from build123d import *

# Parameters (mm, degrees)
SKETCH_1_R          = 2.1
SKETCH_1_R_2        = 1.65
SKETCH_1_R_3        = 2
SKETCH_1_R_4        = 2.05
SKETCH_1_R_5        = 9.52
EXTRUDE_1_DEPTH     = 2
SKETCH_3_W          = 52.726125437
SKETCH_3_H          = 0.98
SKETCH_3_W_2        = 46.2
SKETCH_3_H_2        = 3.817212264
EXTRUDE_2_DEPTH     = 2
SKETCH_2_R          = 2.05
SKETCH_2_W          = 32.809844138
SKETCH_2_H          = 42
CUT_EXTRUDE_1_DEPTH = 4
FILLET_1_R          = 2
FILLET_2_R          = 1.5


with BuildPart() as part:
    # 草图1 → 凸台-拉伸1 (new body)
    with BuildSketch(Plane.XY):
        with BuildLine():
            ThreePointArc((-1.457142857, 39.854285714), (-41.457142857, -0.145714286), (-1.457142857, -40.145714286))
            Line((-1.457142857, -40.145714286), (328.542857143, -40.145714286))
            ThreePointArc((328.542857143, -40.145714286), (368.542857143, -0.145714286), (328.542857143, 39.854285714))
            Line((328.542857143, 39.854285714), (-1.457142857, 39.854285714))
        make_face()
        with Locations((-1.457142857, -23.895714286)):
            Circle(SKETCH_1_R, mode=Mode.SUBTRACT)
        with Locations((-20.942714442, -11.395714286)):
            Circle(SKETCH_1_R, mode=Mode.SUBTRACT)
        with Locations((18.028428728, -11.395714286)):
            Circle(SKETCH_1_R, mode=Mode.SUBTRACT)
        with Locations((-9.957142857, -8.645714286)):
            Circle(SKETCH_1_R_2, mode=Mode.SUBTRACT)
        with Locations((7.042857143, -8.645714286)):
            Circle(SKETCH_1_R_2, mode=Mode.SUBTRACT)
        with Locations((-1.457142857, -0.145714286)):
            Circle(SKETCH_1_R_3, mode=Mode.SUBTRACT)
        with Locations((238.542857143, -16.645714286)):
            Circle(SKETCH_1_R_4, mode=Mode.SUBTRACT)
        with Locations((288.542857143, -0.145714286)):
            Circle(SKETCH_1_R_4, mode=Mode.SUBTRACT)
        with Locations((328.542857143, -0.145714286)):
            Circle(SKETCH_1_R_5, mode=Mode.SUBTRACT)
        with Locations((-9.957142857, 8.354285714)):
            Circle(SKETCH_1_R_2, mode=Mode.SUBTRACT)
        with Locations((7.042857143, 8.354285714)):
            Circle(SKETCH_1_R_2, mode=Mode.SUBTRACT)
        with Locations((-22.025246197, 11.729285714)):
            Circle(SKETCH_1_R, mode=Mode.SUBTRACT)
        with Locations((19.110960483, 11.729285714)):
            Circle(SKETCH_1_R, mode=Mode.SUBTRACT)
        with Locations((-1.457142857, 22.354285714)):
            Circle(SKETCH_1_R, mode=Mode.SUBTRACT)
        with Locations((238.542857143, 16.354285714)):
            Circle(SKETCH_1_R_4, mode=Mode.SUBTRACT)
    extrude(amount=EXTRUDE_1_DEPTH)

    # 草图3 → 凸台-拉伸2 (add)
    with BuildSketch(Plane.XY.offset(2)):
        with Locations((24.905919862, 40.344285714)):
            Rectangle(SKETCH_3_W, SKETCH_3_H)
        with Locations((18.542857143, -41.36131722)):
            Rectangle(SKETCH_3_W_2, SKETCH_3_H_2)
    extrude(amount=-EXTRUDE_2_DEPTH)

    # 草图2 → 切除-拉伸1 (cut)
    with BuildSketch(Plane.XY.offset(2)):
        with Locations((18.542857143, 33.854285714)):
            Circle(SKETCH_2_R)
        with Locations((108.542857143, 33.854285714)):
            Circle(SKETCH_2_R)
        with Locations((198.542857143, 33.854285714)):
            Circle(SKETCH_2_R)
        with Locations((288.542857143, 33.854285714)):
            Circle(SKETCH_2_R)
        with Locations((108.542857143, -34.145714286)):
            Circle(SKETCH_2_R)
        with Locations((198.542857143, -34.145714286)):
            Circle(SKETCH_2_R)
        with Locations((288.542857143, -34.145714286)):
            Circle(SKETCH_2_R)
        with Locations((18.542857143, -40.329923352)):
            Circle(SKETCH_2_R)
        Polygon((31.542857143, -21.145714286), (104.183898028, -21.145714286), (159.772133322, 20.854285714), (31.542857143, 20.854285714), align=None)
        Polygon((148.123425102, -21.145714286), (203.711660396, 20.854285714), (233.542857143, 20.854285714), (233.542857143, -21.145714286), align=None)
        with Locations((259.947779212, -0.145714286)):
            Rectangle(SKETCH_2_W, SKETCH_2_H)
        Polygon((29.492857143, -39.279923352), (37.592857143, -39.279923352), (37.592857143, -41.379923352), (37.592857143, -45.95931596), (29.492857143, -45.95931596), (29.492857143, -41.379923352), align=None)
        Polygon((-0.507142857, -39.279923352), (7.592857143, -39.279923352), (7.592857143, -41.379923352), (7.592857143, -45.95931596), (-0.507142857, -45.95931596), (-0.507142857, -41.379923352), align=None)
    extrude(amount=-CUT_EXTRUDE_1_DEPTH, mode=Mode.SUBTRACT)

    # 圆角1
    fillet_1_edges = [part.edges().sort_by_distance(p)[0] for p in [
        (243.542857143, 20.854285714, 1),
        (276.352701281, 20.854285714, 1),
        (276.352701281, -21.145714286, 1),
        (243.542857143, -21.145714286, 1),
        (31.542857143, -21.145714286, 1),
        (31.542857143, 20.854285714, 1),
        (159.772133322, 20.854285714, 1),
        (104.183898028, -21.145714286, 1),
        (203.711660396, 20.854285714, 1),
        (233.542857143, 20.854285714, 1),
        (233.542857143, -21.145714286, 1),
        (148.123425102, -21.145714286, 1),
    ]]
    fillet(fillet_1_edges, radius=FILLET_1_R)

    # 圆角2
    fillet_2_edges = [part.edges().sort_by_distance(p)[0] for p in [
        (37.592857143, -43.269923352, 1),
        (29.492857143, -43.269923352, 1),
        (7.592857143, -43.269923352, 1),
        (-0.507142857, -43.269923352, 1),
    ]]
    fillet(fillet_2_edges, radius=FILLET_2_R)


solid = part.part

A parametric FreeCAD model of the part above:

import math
import FreeCAD as App
import Part
import Sketcher

V = App.Vector


def edges_at(feature, points):
    """Names of the edges that pass closest to the given points."""
    edges = feature.Shape.Edges
    near = lambda p: min(range(len(edges)), key=lambda i: edges[i].distToShape(Part.Vertex(*p))[0])
    return sorted({f"Edge{near(p) + 1}" for p in points})

doc = App.newDocument("Part")
body = doc.addObject("PartDesign::Body", "Body")

# Sketch on XY plane
sketch1 = body.newObject("Sketcher::SketchObject", "Sketch")
sketch1.AttachmentSupport = (doc.getObject("XY_Plane"), [""])
sketch1.MapMode = "FlatFace"
sketch1.addGeometry(Part.ArcOfCircle(Part.Circle(V(-1.5, -0.1, 0), V(0, 0, 1), 40), math.radians(90), math.radians(270)), False)
sketch1.addGeometry(Part.LineSegment(V(-1.5, -40.1, 0), V(328.5, -40.1, 0)), False)
sketch1.addGeometry(Part.ArcOfCircle(Part.Circle(V(328.5, -0.1, 0), V(0, 0, 1), 40), math.radians(-90), math.radians(90)), False)
sketch1.addGeometry(Part.LineSegment(V(328.5, 39.9, 0), V(-1.5, 39.9, 0)), False)
sketch1.addGeometry(Part.Circle(V(-1.5, -23.9, 0), V(0, 0, 1), 2.1), False)
sketch1.addGeometry(Part.Circle(V(-20.9, -11.4, 0), V(0, 0, 1), 2.1), False)
sketch1.addGeometry(Part.Circle(V(18, -11.4, 0), V(0, 0, 1), 2.1), False)
sketch1.addGeometry(Part.Circle(V(-10, -8.6, 0), V(0, 0, 1), 1.6), False)
sketch1.addGeometry(Part.Circle(V(7, -8.6, 0), V(0, 0, 1), 1.6), False)
sketch1.addGeometry(Part.Circle(V(238.5, -16.6, 0), V(0, 0, 1), 2), False)
sketch1.addGeometry(Part.Circle(V(-1.5, -0.1, 0), V(0, 0, 1), 2), False)
sketch1.addGeometry(Part.Circle(V(-10, 8.4, 0), V(0, 0, 1), 1.6), False)
sketch1.addGeometry(Part.Circle(V(7, 8.4, 0), V(0, 0, 1), 1.6), False)
sketch1.addGeometry(Part.Circle(V(-22, 11.7, 0), V(0, 0, 1), 2.1), False)
sketch1.addGeometry(Part.Circle(V(19.1, 11.7, 0), V(0, 0, 1), 2.1), False)
sketch1.addGeometry(Part.Circle(V(-1.5, 22.4, 0), V(0, 0, 1), 2.1), False)
sketch1.addGeometry(Part.Circle(V(288.5, -0.1, 0), V(0, 0, 1), 2), False)
sketch1.addGeometry(Part.Circle(V(328.5, -0.1, 0), V(0, 0, 1), 9.5), False)
sketch1.addGeometry(Part.Circle(V(238.5, 16.4, 0), V(0, 0, 1), 2), False)
sketch1.addConstraint(Sketcher.Constraint("Tangent", 0, 2, 1, 1))
sketch1.addConstraint(Sketcher.Constraint("Tangent", 1, 2, 2, 1))
sketch1.addConstraint(Sketcher.Constraint("Tangent", 2, 2, 3, 1))
sketch1.addConstraint(Sketcher.Constraint("Tangent", 3, 2, 0, 1))
sketch1.addConstraint(Sketcher.Constraint("Horizontal", 1))
sketch1.addConstraint(Sketcher.Constraint("Horizontal", 3))
sketch1.addConstraint(Sketcher.Constraint("Coincident", 10, 3, 0, 3))
sketch1.addConstraint(Sketcher.Constraint("Coincident", 17, 3, 2, 3))
sketch1.addConstraint(Sketcher.Constraint("Equal", 4, 5))
sketch1.addConstraint(Sketcher.Constraint("Equal", 5, 6))
sketch1.addConstraint(Sketcher.Constraint("Equal", 7, 8))
sketch1.addConstraint(Sketcher.Constraint("Equal", 8, 11))
sketch1.addConstraint(Sketcher.Constraint("Equal", 11, 12))
sketch1.addConstraint(Sketcher.Constraint("Equal", 6, 13))
sketch1.addConstraint(Sketcher.Constraint("Equal", 13, 14))
sketch1.addConstraint(Sketcher.Constraint("Equal", 14, 15))
sketch1.addConstraint(Sketcher.Constraint("Equal", 9, 16))
sketch1.addConstraint(Sketcher.Constraint("Equal", 16, 18))
sketch1.addConstraint(Sketcher.Constraint("Horizontal", 5, 3, 6, 3))
sketch1.addConstraint(Sketcher.Constraint("Horizontal", 7, 3, 8, 3))
sketch1.addConstraint(Sketcher.Constraint("Horizontal", 11, 3, 12, 3))
sketch1.addConstraint(Sketcher.Constraint("Horizontal", 13, 3, 14, 3))
sketch1.addConstraint(Sketcher.Constraint("Horizontal", 10, 3, 16, 3))
sketch1.addConstraint(Sketcher.Constraint("Vertical", 0, 3, 4, 3))
sketch1.addConstraint(Sketcher.Constraint("Vertical", 7, 3, 11, 3))
sketch1.addConstraint(Sketcher.Constraint("Vertical", 8, 3, 12, 3))
sketch1.addConstraint(Sketcher.Constraint("Vertical", 10, 3, 15, 3))
sketch1.addConstraint(Sketcher.Constraint("Vertical", 9, 3, 18, 3))
sketch1.addConstraint(Sketcher.Constraint("Diameter", 10, 4.0))
sketch1.addConstraint(Sketcher.Constraint("Radius", 0, 40.0))
sketch1.addConstraint(Sketcher.Constraint("Diameter", 4, 4.2))
sketch1.addConstraint(Sketcher.Constraint("Diameter", 7, 3.3))
sketch1.addConstraint(Sketcher.Constraint("Diameter", 9, 4.1))
sketch1.addConstraint(Sketcher.Constraint("Diameter", 17, 19.04))
sketch1.addConstraint(Sketcher.Constraint("DistanceX", 1, 1, 1, 2, 330.0))
sketch1.addConstraint(Sketcher.Constraint("DistanceX", 7, 3, 8, 3, 17.0))
sketch1.addConstraint(Sketcher.Constraint("DistanceX", 9, 3, 2, 3, 90.0))
sketch1.addConstraint(Sketcher.Constraint("DistanceY", 9, 3, 8, 3, 8.0))
sketch1.addConstraint(Sketcher.Constraint("DistanceY", 7, 3, 11, 3, 17.0))
sketch1.addConstraint(Sketcher.Constraint("DistanceY", 11, 3, 15, 3, 14.0))
sketch1.addConstraint(Sketcher.Constraint("DistanceX", 16, 3, 2, 3, 40.0))
sketch1.addConstraint(Sketcher.Constraint("DistanceY", 9, 3, 18, 3, 33.0))
sketch1.addConstraint(Sketcher.Constraint("DistanceY", 4, 3, 5, 3, 12.5))
sketch1.addConstraint(Sketcher.Constraint("DistanceX", 7, 3, 0, 3, 8.5))
sketch1.addConstraint(Sketcher.Constraint("DistanceY", 7, 3, 0, 3, 8.5))
sketch1.addConstraint(Sketcher.Constraint("DistanceY", 4, 3, 0, 3, 23.75))
sketch1.addConstraint(Sketcher.Constraint("DistanceY", 11, 3, 13, 3, 3.375))
sketch1.addConstraint(Sketcher.Constraint("DistanceX", -1, 1, 6, 3, 18.028429))
sketch1.addConstraint(Sketcher.Constraint("DistanceX", -1, 1, 14, 3, 19.11096))
sketch1.addConstraint(Sketcher.Constraint("DistanceX", 5, 3, 0, 3, 19.485572))
sketch1.addConstraint(Sketcher.Constraint("DistanceX", 0, 3, 6, 3, 19.485572))
sketch1.addConstraint(Sketcher.Constraint("DistanceX", 13, 3, 5, 3, 1.082532))
sketch1.addConstraint(Sketcher.Constraint("DistanceY", 0, 3, -1, 1, 0.145714))
pad1 = body.newObject("PartDesign::Pad", "Pad")
pad1.Profile = sketch1
pad1.Length = 2

# Sketch on XY plane
sketch2 = body.newObject("Sketcher::SketchObject", "Sketch001")
sketch2.AttachmentSupport = (doc.getObject("XY_Plane"), [""])
sketch2.MapMode = "FlatFace"
sketch2.AttachmentOffset = App.Placement(V(0, 0, 2), App.Rotation())
sketch2.addGeometry(Part.LineSegment(V(-1.5, 40.8, 0), V(-1.5, 39.9, 0)), False)
sketch2.addGeometry(Part.LineSegment(V(-1.5, 39.9, 0), V(51.3, 39.9, 0)), False)
sketch2.addGeometry(Part.LineSegment(V(51.3, 39.9, 0), V(51.3, 40.8, 0)), False)
sketch2.addGeometry(Part.LineSegment(V(51.3, 40.8, 0), V(-1.5, 40.8, 0)), False)
sketch2.addGeometry(Part.LineSegment(V(-4.6, -39.5, 0), V(-4.6, -43.3, 0)), False)
sketch2.addGeometry(Part.LineSegment(V(-4.6, -43.3, 0), V(41.6, -43.3, 0)), False)
sketch2.addGeometry(Part.LineSegment(V(41.6, -43.3, 0), V(41.6, -39.5, 0)), False)
sketch2.addGeometry(Part.LineSegment(V(41.6, -39.5, 0), V(-4.6, -39.5, 0)), False)
sketch2.addConstraint(Sketcher.Constraint("Coincident", 0, 2, 1, 1))
sketch2.addConstraint(Sketcher.Constraint("Coincident", 1, 2, 2, 1))
sketch2.addConstraint(Sketcher.Constraint("Coincident", 2, 2, 3, 1))
sketch2.addConstraint(Sketcher.Constraint("Coincident", 3, 2, 0, 1))
sketch2.addConstraint(Sketcher.Constraint("Coincident", 4, 2, 5, 1))
sketch2.addConstraint(Sketcher.Constraint("Coincident", 5, 2, 6, 1))
sketch2.addConstraint(Sketcher.Constraint("Coincident", 6, 2, 7, 1))
sketch2.addConstraint(Sketcher.Constraint("Coincident", 7, 2, 4, 1))
sketch2.addConstraint(Sketcher.Constraint("Vertical", 0))
sketch2.addConstraint(Sketcher.Constraint("Horizontal", 1))
sketch2.addConstraint(Sketcher.Constraint("Vertical", 2))
sketch2.addConstraint(Sketcher.Constraint("Horizontal", 3))
sketch2.addConstraint(Sketcher.Constraint("Vertical", 4))
sketch2.addConstraint(Sketcher.Constraint("Horizontal", 5))
sketch2.addConstraint(Sketcher.Constraint("Vertical", 6))
sketch2.addConstraint(Sketcher.Constraint("Horizontal", 7))
sketch2.addConstraint(Sketcher.Constraint("DistanceX", 5, 1, 5, 2, 46.2))
sketch2.addConstraint(Sketcher.Constraint("DistanceY", 0, 2, 0, 1, 0.98))
sketch2.addConstraint(Sketcher.Constraint("DistanceX", 4, 2, 0, 2, 3.1))
sketch2.addConstraint(Sketcher.Constraint("DistanceX", 1, 1, 1, 2, 52.726125))
sketch2.addConstraint(Sketcher.Constraint("DistanceY", 4, 2, 4, 1, 3.817212))
sketch2.addConstraint(Sketcher.Constraint("DistanceY", 6, 2, -1, 1, 39.452711))
sketch2.addConstraint(Sketcher.Constraint("DistanceY", 4, 2, 0, 2, 83.124209))
sketch2.addConstraint(Sketcher.Constraint("DistanceX", 0, 2, -1, 1, 1.457143))
pad2 = body.newObject("PartDesign::Pad", "Pad001")
pad2.Profile = sketch2
pad2.Length = 2
pad2.Reversed = True

# Sketch on XY plane
sketch3 = body.newObject("Sketcher::SketchObject", "Sketch002")
sketch3.AttachmentSupport = (doc.getObject("XY_Plane"), [""])
sketch3.MapMode = "FlatFace"
sketch3.AttachmentOffset = App.Placement(V(0, 0, 2), App.Rotation())
sketch3.addGeometry(Part.Circle(V(18.5, 33.9, 0), V(0, 0, 1), 2), False)
sketch3.addGeometry(Part.Circle(V(108.5, 33.9, 0), V(0, 0, 1), 2), False)
sketch3.addGeometry(Part.Circle(V(198.5, 33.9, 0), V(0, 0, 1), 2), False)
sketch3.addGeometry(Part.Circle(V(288.5, 33.9, 0), V(0, 0, 1), 2), False)
sketch3.addGeometry(Part.Circle(V(108.5, -34.1, 0), V(0, 0, 1), 2), False)
sketch3.addGeometry(Part.Circle(V(198.5, -34.1, 0), V(0, 0, 1), 2), False)
sketch3.addGeometry(Part.Circle(V(288.5, -34.1, 0), V(0, 0, 1), 2), False)
sketch3.addGeometry(Part.Circle(V(18.5, -40.3, 0), V(0, 0, 1), 2), False)
sketch3.addGeometry(Part.LineSegment(V(31.5, -21.1, 0), V(104.2, -21.1, 0)), False)
sketch3.addGeometry(Part.LineSegment(V(104.2, -21.1, 0), V(159.8, 20.9, 0)), False)
sketch3.addGeometry(Part.LineSegment(V(159.8, 20.9, 0), V(31.5, 20.9, 0)), False)
sketch3.addGeometry(Part.LineSegment(V(31.5, 20.9, 0), V(31.5, -21.1, 0)), False)
sketch3.addGeometry(Part.LineSegment(V(203.7, 20.9, 0), V(148.1, -21.1, 0)), False)
sketch3.addGeometry(Part.LineSegment(V(148.1, -21.1, 0), V(233.5, -21.1, 0)), False)
sketch3.addGeometry(Part.LineSegment(V(233.5, -21.1, 0), V(233.5, 20.9, 0)), False)
sketch3.addGeometry(Part.LineSegment(V(233.5, 20.9, 0), V(203.7, 20.9, 0)), False)
sketch3.addGeometry(Part.LineSegment(V(243.5, 20.9, 0), V(243.5, -21.1, 0)), False)
sketch3.addGeometry(Part.LineSegment(V(243.5, -21.1, 0), V(276.4, -21.1, 0)), False)
sketch3.addGeometry(Part.LineSegment(V(276.4, -21.1, 0), V(276.4, 20.9, 0)), False)
sketch3.addGeometry(Part.LineSegment(V(276.4, 20.9, 0), V(243.5, 20.9, 0)), False)
sketch3.addGeometry(Part.LineSegment(V(37.6, -39.3, 0), V(29.5, -39.3, 0)), False)
sketch3.addGeometry(Part.LineSegment(V(29.5, -39.3, 0), V(29.5, -46, 0)), False)
sketch3.addGeometry(Part.LineSegment(V(29.5, -46, 0), V(37.6, -46, 0)), False)
sketch3.addGeometry(Part.LineSegment(V(37.6, -46, 0), V(37.6, -39.3, 0)), False)
sketch3.addGeometry(Part.LineSegment(V(7.6, -39.3, 0), V(-0.5, -39.3, 0)), False)
sketch3.addGeometry(Part.LineSegment(V(-0.5, -39.3, 0), V(-0.5, -46, 0)), False)
sketch3.addGeometry(Part.LineSegment(V(-0.5, -46, 0), V(7.6, -46, 0)), False)
sketch3.addGeometry(Part.LineSegment(V(7.6, -46, 0), V(7.6, -39.3, 0)), False)
sketch3.addConstraint(Sketcher.Constraint("Coincident", 8, 2, 9, 1))
sketch3.addConstraint(Sketcher.Constraint("Coincident", 9, 2, 10, 1))
sketch3.addConstraint(Sketcher.Constraint("Coincident", 10, 2, 11, 1))
sketch3.addConstraint(Sketcher.Constraint("Coincident", 11, 2, 8, 1))
sketch3.addConstraint(Sketcher.Constraint("Coincident", 12, 2, 13, 1))
sketch3.addConstraint(Sketcher.Constraint("Coincident", 13, 2, 14, 1))
sketch3.addConstraint(Sketcher.Constraint("Coincident", 14, 2, 15, 1))
sketch3.addConstraint(Sketcher.Constraint("Coincident", 15, 2, 12, 1))
sketch3.addConstraint(Sketcher.Constraint("Coincident", 16, 2, 17, 1))
sketch3.addConstraint(Sketcher.Constraint("Coincident", 17, 2, 18, 1))
sketch3.addConstraint(Sketcher.Constraint("Coincident", 18, 2, 19, 1))
sketch3.addConstraint(Sketcher.Constraint("Coincident", 19, 2, 16, 1))
sketch3.addConstraint(Sketcher.Constraint("Coincident", 20, 2, 21, 1))
sketch3.addConstraint(Sketcher.Constraint("Coincident", 21, 2, 22, 1))
sketch3.addConstraint(Sketcher.Constraint("Coincident", 22, 2, 23, 1))
sketch3.addConstraint(Sketcher.Constraint("Coincident", 23, 2, 20, 1))
sketch3.addConstraint(Sketcher.Constraint("Coincident", 24, 2, 25, 1))
sketch3.addConstraint(Sketcher.Constraint("Coincident", 25, 2, 26, 1))
sketch3.addConstraint(Sketcher.Constraint("Coincident", 26, 2, 27, 1))
sketch3.addConstraint(Sketcher.Constraint("Coincident", 27, 2, 24, 1))
sketch3.addConstraint(Sketcher.Constraint("Horizontal", 8))
sketch3.addConstraint(Sketcher.Constraint("Horizontal", 10))
sketch3.addConstraint(Sketcher.Constraint("Vertical", 11))
sketch3.addConstraint(Sketcher.Constraint("Horizontal", 13))
sketch3.addConstraint(Sketcher.Constraint("Vertical", 14))
sketch3.addConstraint(Sketcher.Constraint("Horizontal", 15))
sketch3.addConstraint(Sketcher.Constraint("Vertical", 16))
sketch3.addConstraint(Sketcher.Constraint("Horizontal", 17))
sketch3.addConstraint(Sketcher.Constraint("Vertical", 18))
sketch3.addConstraint(Sketcher.Constraint("Horizontal", 19))
sketch3.addConstraint(Sketcher.Constraint("Horizontal", 20))
sketch3.addConstraint(Sketcher.Constraint("Vertical", 21))
sketch3.addConstraint(Sketcher.Constraint("Horizontal", 22))
sketch3.addConstraint(Sketcher.Constraint("Vertical", 23))
sketch3.addConstraint(Sketcher.Constraint("Horizontal", 24))
sketch3.addConstraint(Sketcher.Constraint("Vertical", 25))
sketch3.addConstraint(Sketcher.Constraint("Horizontal", 26))
sketch3.addConstraint(Sketcher.Constraint("Vertical", 27))
sketch3.addConstraint(Sketcher.Constraint("Equal", 0, 1))
sketch3.addConstraint(Sketcher.Constraint("Equal", 1, 2))
sketch3.addConstraint(Sketcher.Constraint("Equal", 2, 3))
sketch3.addConstraint(Sketcher.Constraint("Equal", 3, 4))
sketch3.addConstraint(Sketcher.Constraint("Equal", 4, 5))
sketch3.addConstraint(Sketcher.Constraint("Equal", 5, 6))
sketch3.addConstraint(Sketcher.Constraint("Equal", 6, 7))
sketch3.addConstraint(Sketcher.Constraint("Parallel", 9, 12))
sketch3.addConstraint(Sketcher.Constraint("Horizontal", 0, 3, 1, 3))
sketch3.addConstraint(Sketcher.Constraint("Horizontal", 1, 3, 2, 3))
sketch3.addConstraint(Sketcher.Constraint("Horizontal", 2, 3, 3, 3))
sketch3.addConstraint(Sketcher.Constraint("Horizontal", 4, 3, 5, 3))
sketch3.addConstraint(Sketcher.Constraint("Horizontal", 5, 3, 6, 3))
sketch3.addConstraint(Sketcher.Constraint("Horizontal", 11, 2, 12, 2))
sketch3.addConstraint(Sketcher.Constraint("Horizontal", 10, 2, 14, 2))
sketch3.addConstraint(Sketcher.Constraint("Horizontal", 13, 2, 16, 2))
sketch3.addConstraint(Sketcher.Constraint("Horizontal", 15, 2, 18, 2))
sketch3.addConstraint(Sketcher.Constraint("Horizontal", 23, 2, 24, 2))
sketch3.addConstraint(Sketcher.Constraint("Horizontal", 22, 2, 25, 2))
sketch3.addConstraint(Sketcher.Constraint("Vertical", 1, 3, 4, 3))
sketch3.addConstraint(Sketcher.Constraint("Vertical", 2, 3, 5, 3))
sketch3.addConstraint(Sketcher.Constraint("Vertical", 3, 3, 6, 3))
sketch3.addConstraint(Sketcher.Constraint("Vertical", 0, 3, 7, 3))
sketch3.addConstraint(Sketcher.Constraint("Equal", 22, 24))
sketch3.addConstraint(Sketcher.Constraint("Diameter", 0, 4.1))
sketch3.addConstraint(Sketcher.Constraint("DistanceY", 11, 2, 11, 1, 42.0))
sketch3.addConstraint(Sketcher.Constraint("DistanceX", 20, 2, 20, 1, 8.1))
sketch3.addConstraint(Sketcher.Constraint("DistanceX", 0, 3, 1, 3, 90.0))
sketch3.addConstraint(Sketcher.Constraint("DistanceX", 1, 3, 2, 3, 90.0))
sketch3.addConstraint(Sketcher.Constraint("DistanceX", 2, 3, 3, 3, 90.0))
sketch3.addConstraint(Sketcher.Constraint("DistanceY", 4, 3, 1, 3, 68.0))
sketch3.addConstraint(Sketcher.Constraint("DistanceY", 4, 3, 8, 2, 13.0))
sketch3.addConstraint(Sketcher.Constraint("DistanceX", 0, 3, 10, 2, 13.0))
sketch3.addConstraint(Sketcher.Constraint("DistanceX", 5, 3, 13, 2, 35.0))
sketch3.addConstraint(Sketcher.Constraint("DistanceX", 13, 2, 16, 2, 10.0))
sketch3.addConstraint(Sketcher.Constraint("DistanceX", 24, 2, 20, 2, 30.0))
sketch3.addConstraint(Sketcher.Constraint("DistanceX", 7, 3, 20, 2, 10.95))
sketch3.addConstraint(Sketcher.Constraint("DistanceY", 7, 3, 20, 2, 1.05))
sketch3.addConstraint(Sketcher.Constraint("DistanceX", 8, 1, 8, 2, 72.641041))
sketch3.addConstraint(Sketcher.Constraint("DistanceX", -1, 1, 8, 2, 104.183898))
sketch3.addConstraint(Sketcher.Constraint("DistanceX", -1, 1, 17, 2, 276.352701))
sketch3.addConstraint(Sketcher.Constraint("DistanceY", 21, 2, 11, 2, 24.813602))
sketch3.addConstraint(Sketcher.Constraint("DistanceX", 10, 2, 10, 1, 128.229276))
sketch3.addConstraint(Sketcher.Constraint("DistanceX", 13, 1, 13, 2, 85.419432))
sketch3.addConstraint(Sketcher.Constraint("DistanceY", 21, 2, 21, 1, 6.679393))
sketch3.addConstraint(Sketcher.Constraint("DistanceY", -1, 1, 0, 3, 33.854286))
pocket1 = body.newObject("PartDesign::Pocket", "Pocket")
pocket1.Profile = sketch3
pocket1.Length = 4
doc.recompute()

fillet = body.newObject("PartDesign::Fillet", "Fillet")
fillet.Base = (pocket1, edges_at(pocket1, [
    (243.543, 20.854, 1),
    (276.353, 20.854, 1),
    (276.353, -21.146, 1),
    (243.543, -21.146, 1),
    (31.543, -21.146, 1),
    (31.543, 20.854, 1),
    (159.772, 20.854, 1),
    (104.184, -21.146, 1),
    (203.712, 20.854, 1),
    (233.543, 20.854, 1),
    (233.543, -21.146, 1),
    (148.123, -21.146, 1),
]))
fillet.Radius = 2
doc.recompute()

fillet2 = body.newObject("PartDesign::Fillet", "Fillet001")
fillet2.Base = (fillet, edges_at(fillet, [
    (37.593, -43.27, 1),
    (29.493, -43.27, 1),
    (7.593, -43.27, 1),
    (-0.507, -43.27, 1),
]))
fillet2.Radius = 1.5

doc.recompute()
